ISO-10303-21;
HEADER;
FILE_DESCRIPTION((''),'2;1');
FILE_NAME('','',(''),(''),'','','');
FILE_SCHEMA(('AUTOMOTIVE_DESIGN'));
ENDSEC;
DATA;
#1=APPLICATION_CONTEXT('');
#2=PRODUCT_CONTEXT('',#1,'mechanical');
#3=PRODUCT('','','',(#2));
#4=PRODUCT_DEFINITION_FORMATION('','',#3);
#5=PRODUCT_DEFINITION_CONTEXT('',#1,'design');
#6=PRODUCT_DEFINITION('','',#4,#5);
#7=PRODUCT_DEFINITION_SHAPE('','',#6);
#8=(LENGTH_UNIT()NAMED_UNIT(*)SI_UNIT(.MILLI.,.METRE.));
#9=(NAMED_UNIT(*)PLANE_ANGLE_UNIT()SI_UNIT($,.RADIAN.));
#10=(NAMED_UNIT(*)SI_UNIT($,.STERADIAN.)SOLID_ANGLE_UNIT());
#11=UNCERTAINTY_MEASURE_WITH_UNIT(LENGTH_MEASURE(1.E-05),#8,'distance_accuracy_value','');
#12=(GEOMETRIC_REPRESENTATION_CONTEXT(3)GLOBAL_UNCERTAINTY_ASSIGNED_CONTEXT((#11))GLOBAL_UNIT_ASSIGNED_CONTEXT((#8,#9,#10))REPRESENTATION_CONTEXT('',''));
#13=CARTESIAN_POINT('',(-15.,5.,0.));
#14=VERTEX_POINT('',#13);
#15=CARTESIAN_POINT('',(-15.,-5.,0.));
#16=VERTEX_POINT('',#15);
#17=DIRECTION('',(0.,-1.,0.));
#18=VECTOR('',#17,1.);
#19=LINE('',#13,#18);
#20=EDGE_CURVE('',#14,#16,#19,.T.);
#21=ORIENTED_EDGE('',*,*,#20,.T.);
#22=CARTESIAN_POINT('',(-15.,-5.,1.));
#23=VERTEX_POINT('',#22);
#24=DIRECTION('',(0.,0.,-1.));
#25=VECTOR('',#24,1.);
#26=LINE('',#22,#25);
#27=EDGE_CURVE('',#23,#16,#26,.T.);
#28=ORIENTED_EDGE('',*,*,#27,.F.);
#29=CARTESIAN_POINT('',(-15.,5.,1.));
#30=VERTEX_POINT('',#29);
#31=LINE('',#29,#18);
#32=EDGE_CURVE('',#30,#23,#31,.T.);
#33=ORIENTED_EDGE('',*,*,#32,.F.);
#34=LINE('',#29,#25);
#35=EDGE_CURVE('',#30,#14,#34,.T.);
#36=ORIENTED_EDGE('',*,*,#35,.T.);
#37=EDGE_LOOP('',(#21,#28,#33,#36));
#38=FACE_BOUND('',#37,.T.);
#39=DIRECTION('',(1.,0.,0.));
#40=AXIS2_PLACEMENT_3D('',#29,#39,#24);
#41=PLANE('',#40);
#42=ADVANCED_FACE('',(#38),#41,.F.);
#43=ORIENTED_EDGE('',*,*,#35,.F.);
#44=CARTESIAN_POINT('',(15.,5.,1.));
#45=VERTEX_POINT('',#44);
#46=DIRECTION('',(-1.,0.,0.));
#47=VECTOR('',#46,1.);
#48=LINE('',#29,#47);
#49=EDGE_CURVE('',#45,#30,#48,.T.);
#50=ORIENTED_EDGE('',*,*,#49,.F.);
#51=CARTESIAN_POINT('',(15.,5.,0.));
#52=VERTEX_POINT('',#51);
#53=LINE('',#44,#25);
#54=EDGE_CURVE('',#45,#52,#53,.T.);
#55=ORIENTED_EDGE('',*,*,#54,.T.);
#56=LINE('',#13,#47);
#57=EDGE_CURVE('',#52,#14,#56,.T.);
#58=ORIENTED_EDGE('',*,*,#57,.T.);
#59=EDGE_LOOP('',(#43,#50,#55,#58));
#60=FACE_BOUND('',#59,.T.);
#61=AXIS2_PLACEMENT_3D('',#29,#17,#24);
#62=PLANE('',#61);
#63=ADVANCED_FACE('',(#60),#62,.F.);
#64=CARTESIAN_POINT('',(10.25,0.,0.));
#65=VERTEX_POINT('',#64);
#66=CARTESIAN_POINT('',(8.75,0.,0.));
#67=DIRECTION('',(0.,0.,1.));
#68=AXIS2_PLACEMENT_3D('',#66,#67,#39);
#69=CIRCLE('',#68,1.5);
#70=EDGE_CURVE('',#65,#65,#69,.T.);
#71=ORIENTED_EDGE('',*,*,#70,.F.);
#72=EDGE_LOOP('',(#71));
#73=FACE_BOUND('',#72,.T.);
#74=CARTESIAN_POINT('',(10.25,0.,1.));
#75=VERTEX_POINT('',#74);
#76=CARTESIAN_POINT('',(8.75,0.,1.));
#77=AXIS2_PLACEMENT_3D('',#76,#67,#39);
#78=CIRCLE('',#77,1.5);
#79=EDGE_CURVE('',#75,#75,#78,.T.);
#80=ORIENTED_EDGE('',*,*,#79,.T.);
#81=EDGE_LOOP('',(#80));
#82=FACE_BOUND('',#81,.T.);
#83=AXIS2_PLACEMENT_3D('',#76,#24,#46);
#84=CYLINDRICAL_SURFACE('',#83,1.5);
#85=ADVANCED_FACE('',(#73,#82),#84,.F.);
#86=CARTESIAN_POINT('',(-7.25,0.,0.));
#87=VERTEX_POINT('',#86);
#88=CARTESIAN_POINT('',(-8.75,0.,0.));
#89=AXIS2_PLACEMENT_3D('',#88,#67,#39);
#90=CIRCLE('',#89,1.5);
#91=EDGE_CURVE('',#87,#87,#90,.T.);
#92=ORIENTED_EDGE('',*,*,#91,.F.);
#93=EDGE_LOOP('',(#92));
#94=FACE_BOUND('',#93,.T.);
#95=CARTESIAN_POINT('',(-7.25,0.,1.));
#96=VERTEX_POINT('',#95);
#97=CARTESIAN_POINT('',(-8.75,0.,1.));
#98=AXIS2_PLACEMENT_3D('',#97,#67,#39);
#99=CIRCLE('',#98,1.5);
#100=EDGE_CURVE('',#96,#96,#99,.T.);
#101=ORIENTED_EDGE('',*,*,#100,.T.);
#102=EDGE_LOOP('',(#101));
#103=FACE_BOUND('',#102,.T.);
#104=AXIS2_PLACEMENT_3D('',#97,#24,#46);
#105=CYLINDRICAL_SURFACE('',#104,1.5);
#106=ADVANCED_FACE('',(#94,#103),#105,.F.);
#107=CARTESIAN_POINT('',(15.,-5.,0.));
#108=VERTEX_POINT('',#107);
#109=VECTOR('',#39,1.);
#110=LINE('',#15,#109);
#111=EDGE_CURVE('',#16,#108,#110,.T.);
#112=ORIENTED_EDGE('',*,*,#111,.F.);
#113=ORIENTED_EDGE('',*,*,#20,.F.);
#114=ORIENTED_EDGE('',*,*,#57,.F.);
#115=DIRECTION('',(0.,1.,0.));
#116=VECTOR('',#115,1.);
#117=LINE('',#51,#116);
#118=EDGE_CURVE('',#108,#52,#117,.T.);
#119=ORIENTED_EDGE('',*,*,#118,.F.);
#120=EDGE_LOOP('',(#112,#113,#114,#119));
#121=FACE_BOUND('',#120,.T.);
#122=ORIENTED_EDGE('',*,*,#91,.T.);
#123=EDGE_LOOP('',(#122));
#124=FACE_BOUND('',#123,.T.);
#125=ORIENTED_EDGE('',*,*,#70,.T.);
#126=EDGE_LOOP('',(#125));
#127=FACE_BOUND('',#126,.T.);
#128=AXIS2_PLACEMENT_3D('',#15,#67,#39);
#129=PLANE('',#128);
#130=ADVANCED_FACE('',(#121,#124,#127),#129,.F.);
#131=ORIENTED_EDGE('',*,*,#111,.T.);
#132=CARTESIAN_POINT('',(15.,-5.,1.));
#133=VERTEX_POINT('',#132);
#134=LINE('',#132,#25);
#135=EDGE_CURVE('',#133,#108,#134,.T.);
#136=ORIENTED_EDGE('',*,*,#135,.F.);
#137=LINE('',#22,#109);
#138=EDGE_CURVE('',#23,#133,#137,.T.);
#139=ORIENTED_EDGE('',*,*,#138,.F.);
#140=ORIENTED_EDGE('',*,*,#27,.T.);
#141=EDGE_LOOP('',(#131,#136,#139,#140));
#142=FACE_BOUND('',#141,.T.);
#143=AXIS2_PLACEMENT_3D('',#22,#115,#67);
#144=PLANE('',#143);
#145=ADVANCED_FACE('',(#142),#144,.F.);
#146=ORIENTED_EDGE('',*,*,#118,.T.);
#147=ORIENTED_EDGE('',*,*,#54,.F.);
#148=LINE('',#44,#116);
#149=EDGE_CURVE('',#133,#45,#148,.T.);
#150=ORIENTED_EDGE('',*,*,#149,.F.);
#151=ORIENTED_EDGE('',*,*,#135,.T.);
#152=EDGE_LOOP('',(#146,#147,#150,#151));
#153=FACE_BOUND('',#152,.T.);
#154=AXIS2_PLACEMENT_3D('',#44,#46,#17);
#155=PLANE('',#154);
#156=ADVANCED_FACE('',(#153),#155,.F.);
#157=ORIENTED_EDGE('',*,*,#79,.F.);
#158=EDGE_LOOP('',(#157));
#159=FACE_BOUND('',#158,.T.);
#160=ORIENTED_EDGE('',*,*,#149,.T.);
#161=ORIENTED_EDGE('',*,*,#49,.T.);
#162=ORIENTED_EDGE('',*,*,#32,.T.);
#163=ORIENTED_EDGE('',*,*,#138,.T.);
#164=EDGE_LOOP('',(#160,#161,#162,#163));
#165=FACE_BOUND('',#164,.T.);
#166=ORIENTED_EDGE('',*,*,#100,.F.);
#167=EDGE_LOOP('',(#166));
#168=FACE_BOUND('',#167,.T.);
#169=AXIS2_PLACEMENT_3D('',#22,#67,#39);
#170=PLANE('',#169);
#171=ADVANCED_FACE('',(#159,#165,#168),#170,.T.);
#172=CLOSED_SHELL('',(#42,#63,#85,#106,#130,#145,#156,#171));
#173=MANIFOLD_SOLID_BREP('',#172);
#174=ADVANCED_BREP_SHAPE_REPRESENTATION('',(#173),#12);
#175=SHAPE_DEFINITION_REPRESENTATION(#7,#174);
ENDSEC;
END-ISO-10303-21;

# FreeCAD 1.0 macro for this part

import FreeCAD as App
import Part
import Sketcher
from FreeCAD import Vector


def add_polygon(sketch, points):
    """Adds a closed chain of lines whose ends are joined by coincident constraints."""
    first, n = sketch.GeometryCount, len(points)
    for a, b in zip(points, points[1:] + points[:1]):
        sketch.addGeometry(Part.LineSegment(App.Vector(*a, 0), App.Vector(*b, 0)), False)
    for i in range(n):
        sketch.addConstraint(Sketcher.Constraint("Coincident", first + i, 2, first + (i + 1) % n, 1))

doc = App.newDocument("Part")
params = doc.addObject("Spreadsheet::Sheet", "Params")
for row, (alias, value) in enumerate([
    ("sketch1_diameter", "3 mm"),
    ("sketch1_width", "30 mm"),
    ("sketch1_height", "10 mm"),
    ("pad1_length", "1 mm"),
], start=1):
    params.set(f"A{row}", alias)
    params.set(f"B{row}", "=" + value)
    params.setAlias(f"B{row}", alias)

body = doc.addObject("PartDesign::Body", "Body")

sketch1 = body.newObject("Sketcher::SketchObject", "Sketch")
sketch1.AttachmentSupport = (doc.getObject("XY_Plane"), [""])
sketch1.MapMode = "FlatFace"
add_polygon(sketch1, [(-15, 5), (-15, -5), (15, -5), (15, 5)])
sketch1.addGeometry(Part.Circle(Vector(-8.8, 0, 0), Vector(0, 0, 1), 1.5), False)
sketch1.addGeometry(Part.Circle(Vector(8.8, 0, 0), Vector(0, 0, 1), 1.5), False)
sketch1.addConstraint([
    Sketcher.Constraint("Vertical", 0),
    Sketcher.Constraint("Horizontal", 1),
    Sketcher.Constraint("Vertical", 2),
    Sketcher.Constraint("Horizontal", 3),
    Sketcher.Constraint("Equal", 4, 5),
    Sketcher.Constraint("Symmetric", 4, 3, 5, 3, -1, 1),
    Sketcher.Constraint("Symmetric", 0, 2, 2, 2, -1, 1),
    Sketcher.Constraint("PointOnObject", 4, 3, -1),
    Sketcher.Constraint("Diameter", 4, 3.0),
    Sketcher.Constraint("DistanceX", 1, 1, 1, 2, 30.0),
    Sketcher.Constraint("DistanceY", 0, 2, 0, 1, 10.0),
    Sketcher.Constraint("DistanceX", 4, 3, 5, 3, 17.5),
])
sketch1.setExpression("Constraints[12]", "Params.sketch1_diameter")
sketch1.setExpression("Constraints[13]", "Params.sketch1_width")
sketch1.setExpression("Constraints[14]", "Params.sketch1_height")
pad1 = body.newObject("PartDesign::Pad", "Pad")
pad1.Profile = sketch1
pad1.setExpression("Length", "Params.pad1_length")

doc.recompute()
